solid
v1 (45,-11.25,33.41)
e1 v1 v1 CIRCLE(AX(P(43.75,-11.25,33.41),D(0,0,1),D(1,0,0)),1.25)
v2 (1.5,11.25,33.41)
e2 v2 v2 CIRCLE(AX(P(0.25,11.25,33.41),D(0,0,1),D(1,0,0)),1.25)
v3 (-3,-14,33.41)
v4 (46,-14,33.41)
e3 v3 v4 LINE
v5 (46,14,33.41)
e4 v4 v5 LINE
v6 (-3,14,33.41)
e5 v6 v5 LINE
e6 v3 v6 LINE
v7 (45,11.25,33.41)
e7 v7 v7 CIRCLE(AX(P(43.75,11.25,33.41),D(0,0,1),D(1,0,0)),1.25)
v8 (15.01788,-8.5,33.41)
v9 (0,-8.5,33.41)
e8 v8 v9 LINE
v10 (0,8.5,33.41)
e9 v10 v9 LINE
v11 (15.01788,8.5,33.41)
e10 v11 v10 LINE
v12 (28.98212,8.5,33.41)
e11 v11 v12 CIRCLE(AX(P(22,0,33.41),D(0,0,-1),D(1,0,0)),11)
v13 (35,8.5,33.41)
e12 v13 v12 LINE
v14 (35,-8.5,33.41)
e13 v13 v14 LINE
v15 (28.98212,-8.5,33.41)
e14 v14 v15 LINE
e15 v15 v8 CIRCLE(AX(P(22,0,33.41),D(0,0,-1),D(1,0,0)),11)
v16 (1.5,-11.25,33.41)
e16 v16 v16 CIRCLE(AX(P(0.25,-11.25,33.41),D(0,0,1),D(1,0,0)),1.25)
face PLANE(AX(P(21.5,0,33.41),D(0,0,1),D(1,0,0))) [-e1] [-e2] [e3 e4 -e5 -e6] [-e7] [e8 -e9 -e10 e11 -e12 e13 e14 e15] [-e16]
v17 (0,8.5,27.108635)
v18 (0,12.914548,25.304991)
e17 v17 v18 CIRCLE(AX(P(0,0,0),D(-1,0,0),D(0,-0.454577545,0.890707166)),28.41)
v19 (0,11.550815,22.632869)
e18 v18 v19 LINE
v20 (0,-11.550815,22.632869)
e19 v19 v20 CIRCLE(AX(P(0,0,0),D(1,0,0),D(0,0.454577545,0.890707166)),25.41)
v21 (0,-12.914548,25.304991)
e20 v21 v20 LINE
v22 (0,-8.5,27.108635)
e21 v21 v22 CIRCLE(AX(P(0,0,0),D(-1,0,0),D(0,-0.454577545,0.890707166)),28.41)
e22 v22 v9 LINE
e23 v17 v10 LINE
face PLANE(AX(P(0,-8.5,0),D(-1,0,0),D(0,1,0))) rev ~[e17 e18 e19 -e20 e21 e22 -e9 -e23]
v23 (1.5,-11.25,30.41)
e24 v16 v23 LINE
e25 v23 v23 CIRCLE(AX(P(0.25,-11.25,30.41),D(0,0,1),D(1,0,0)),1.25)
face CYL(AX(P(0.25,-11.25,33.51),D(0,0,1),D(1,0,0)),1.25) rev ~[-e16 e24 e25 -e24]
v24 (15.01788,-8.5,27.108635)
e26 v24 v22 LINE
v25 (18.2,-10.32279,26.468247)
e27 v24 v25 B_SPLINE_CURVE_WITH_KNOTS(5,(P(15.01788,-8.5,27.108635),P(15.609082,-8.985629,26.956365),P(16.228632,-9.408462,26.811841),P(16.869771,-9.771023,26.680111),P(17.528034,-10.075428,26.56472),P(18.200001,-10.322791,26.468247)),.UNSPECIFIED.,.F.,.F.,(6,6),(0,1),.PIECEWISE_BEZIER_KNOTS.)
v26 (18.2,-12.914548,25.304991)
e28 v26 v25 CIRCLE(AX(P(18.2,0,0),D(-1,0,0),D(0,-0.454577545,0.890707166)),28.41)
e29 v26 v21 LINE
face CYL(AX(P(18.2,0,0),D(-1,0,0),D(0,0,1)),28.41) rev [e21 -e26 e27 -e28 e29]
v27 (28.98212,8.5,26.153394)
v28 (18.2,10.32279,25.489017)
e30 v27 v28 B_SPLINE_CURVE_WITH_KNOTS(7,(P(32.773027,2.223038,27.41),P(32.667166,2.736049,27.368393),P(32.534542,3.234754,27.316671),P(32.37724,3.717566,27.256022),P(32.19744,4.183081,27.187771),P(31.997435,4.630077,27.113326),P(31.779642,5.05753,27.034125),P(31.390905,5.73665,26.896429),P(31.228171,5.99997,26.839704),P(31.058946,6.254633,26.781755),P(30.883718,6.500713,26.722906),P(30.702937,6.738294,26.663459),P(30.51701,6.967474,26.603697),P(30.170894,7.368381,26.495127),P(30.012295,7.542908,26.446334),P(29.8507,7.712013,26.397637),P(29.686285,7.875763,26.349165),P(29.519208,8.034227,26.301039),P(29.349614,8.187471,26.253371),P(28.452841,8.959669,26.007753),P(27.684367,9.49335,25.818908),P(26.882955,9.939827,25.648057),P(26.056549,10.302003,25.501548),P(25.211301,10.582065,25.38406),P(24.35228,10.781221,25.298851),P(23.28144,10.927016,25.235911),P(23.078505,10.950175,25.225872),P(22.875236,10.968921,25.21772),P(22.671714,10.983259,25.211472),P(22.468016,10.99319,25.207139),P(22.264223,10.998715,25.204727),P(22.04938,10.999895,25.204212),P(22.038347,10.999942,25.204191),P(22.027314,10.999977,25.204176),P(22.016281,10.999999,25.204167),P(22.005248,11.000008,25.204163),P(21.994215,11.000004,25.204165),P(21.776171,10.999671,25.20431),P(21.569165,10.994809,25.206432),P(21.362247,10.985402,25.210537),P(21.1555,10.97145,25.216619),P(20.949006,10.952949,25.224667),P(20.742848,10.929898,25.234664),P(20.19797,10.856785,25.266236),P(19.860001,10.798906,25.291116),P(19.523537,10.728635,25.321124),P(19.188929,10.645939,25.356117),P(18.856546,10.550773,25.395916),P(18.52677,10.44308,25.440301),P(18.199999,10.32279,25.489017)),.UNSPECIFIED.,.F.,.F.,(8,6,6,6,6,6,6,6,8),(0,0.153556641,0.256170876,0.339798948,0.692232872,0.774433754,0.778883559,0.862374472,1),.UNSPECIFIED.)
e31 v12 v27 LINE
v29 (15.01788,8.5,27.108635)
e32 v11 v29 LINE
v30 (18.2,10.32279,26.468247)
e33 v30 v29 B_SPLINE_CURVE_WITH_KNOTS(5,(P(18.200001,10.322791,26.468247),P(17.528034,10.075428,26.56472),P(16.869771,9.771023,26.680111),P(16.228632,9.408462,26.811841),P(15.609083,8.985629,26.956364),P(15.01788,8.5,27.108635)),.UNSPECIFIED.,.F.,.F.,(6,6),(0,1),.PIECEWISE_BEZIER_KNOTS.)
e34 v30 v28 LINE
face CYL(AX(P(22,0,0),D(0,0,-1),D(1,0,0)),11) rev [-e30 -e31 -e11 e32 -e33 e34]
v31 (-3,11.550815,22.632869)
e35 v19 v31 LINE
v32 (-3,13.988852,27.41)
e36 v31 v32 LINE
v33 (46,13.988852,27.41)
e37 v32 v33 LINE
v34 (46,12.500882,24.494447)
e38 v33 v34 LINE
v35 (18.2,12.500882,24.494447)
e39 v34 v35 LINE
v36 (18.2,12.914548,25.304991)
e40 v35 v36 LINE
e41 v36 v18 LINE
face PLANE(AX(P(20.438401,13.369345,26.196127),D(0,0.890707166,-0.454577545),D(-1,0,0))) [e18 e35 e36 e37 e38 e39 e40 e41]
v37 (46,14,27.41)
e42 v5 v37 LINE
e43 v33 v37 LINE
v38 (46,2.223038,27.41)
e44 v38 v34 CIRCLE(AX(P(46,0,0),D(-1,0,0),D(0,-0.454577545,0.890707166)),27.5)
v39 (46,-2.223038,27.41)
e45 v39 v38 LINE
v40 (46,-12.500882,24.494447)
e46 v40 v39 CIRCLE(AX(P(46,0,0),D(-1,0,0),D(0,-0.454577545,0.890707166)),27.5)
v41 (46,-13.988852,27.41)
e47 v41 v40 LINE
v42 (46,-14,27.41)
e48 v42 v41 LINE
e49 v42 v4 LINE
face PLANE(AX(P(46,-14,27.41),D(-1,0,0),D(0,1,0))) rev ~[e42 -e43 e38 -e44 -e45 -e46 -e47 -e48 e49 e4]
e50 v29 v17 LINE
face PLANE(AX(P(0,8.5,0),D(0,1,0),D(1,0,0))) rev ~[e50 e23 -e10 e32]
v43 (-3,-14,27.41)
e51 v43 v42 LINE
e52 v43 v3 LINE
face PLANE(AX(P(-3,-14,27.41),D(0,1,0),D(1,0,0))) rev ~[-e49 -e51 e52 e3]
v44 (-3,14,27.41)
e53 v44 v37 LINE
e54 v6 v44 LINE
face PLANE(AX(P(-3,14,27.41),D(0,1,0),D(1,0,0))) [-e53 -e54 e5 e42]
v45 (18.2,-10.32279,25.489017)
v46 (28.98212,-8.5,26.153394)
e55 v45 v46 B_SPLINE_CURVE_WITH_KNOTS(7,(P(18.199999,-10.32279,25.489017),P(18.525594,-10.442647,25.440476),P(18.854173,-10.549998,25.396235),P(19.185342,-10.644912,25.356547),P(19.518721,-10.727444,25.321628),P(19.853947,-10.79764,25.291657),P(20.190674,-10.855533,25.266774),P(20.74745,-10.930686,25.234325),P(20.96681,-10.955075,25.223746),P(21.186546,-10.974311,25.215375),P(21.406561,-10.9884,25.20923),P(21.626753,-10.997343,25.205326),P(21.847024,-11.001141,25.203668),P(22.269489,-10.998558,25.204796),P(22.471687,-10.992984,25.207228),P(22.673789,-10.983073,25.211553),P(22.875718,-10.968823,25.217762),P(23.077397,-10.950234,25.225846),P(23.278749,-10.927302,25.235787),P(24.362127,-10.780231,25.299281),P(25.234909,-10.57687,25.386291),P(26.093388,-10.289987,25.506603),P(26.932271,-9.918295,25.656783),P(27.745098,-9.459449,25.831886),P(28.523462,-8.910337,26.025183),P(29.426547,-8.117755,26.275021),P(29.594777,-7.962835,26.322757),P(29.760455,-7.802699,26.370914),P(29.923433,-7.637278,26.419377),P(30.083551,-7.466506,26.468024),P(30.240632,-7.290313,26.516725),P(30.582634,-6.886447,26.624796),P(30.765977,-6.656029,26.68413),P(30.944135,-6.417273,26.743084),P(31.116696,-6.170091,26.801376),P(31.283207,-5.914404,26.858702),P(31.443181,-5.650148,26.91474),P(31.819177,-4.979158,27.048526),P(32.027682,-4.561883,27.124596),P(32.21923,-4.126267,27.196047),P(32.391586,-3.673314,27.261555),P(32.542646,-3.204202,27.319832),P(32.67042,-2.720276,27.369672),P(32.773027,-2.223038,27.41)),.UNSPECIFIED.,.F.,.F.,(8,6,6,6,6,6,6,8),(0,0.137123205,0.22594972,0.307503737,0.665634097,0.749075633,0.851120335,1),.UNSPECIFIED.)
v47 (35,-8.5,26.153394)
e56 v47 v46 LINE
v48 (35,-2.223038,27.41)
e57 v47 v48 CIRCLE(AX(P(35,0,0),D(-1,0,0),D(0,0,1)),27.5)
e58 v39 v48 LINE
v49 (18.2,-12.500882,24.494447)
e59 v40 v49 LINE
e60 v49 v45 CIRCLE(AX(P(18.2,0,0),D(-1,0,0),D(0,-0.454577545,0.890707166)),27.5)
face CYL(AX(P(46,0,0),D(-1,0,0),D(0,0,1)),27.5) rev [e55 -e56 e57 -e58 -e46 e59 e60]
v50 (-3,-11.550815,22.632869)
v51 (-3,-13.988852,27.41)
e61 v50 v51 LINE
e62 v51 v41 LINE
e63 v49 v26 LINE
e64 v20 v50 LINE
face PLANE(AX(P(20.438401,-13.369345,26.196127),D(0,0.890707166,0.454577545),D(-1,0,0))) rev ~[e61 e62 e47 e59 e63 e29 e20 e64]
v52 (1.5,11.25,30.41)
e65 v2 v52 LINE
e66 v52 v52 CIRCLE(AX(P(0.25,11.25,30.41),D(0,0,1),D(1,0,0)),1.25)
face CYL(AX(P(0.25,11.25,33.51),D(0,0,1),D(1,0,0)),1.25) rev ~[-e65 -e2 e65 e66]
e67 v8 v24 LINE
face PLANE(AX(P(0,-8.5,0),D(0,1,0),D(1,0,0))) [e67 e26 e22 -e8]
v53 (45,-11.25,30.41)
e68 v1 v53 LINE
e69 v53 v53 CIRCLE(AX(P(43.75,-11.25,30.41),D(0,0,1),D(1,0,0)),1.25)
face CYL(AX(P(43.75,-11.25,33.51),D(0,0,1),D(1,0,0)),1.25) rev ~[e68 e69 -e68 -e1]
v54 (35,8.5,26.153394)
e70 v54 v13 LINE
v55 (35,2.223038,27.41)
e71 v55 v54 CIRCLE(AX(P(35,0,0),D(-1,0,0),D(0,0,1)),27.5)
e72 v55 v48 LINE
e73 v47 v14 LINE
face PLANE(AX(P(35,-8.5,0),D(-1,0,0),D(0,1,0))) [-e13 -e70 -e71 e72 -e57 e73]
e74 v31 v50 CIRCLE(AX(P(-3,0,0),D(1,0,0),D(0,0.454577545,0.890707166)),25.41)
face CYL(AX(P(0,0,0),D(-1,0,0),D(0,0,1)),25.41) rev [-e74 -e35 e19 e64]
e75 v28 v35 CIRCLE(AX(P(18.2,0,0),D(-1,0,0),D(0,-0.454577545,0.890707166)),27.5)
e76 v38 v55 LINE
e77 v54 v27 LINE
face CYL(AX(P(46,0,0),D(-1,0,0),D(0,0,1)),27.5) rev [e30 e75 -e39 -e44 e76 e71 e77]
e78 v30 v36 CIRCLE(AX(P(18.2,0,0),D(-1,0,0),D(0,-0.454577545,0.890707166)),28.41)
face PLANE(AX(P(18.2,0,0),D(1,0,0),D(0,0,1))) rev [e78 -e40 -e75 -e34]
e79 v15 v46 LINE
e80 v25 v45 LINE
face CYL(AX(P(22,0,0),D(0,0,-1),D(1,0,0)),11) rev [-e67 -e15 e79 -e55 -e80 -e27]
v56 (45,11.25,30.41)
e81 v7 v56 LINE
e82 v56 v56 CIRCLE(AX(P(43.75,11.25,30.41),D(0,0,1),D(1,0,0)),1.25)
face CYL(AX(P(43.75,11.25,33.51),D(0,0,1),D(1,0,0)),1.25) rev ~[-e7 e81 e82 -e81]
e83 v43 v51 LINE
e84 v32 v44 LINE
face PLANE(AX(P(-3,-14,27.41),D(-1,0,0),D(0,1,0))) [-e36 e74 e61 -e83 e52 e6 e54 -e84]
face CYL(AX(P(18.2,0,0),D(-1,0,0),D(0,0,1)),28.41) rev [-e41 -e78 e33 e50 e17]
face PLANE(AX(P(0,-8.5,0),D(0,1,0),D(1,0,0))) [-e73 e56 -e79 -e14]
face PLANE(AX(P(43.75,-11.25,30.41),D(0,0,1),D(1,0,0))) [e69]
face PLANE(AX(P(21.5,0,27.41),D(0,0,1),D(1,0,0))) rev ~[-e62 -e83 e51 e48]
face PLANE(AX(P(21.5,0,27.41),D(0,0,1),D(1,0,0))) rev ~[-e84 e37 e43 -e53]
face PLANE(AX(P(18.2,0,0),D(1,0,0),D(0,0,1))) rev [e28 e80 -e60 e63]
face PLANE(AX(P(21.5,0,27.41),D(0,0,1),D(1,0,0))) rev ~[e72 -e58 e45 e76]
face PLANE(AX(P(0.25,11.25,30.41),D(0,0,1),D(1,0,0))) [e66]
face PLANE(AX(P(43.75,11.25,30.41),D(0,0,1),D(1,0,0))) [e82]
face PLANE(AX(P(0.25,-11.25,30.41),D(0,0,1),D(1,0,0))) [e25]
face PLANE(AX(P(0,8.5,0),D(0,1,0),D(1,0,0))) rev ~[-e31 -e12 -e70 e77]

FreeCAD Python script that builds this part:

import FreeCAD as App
import Part
import Sketcher

V = App.Vector
Q = App.Units.Quantity


def add_polygon(sketch, points):
    """Adds a closed chain of lines whose ends are joined by coincident constraints."""
    first, n = sketch.GeometryCount, len(points)
    for a, b in zip(points, points[1:] + points[:1]):
        sketch.addGeometry(Part.LineSegment(App.Vector(*a, 0), App.Vector(*b, 0)), False)
    for i in range(n):
        sketch.addConstraint(Sketcher.Constraint("Coincident", first + i, 2, first + (i + 1) % n, 1))

doc = App.newDocument("Part")
body = doc.addObject("PartDesign::Body", "Body")

sketch1 = doc.addObject("Sketcher::SketchObject", "Sketch")
body.addObject(sketch1)
sketch1.AttachmentSupport = (doc.XZ_Plane, [""])
sketch1.MapMode = "FlatFace"
add_polygon(sketch1, [(46, 31.4), (-3, 31.4), (-3, 25.4), (0, 25.4), (0, 28.4), (18.2, 28.4), (18.2, 27.5), (46, 27.5)])
sketch1.addConstraint([
    Sketcher.Constraint("Horizontal", 0),
    Sketcher.Constraint("Vertical", 1),
    Sketcher.Constraint("Horizontal", 2),
    Sketcher.Constraint("Vertical", 3),
    Sketcher.Constraint("Horizontal", 4),
    Sketcher.Constraint("Vertical", 5),
    Sketcher.Constraint("Horizontal", 6),
    Sketcher.Constraint("Vertical", 7),
    Sketcher.Constraint("PointOnObject", 2, 2, -2),
    Sketcher.Constraint("Equal", 2, 3),
    Sketcher.Constraint("DistanceX", 0, 2, 0, 1, Q("49 mm")),
    Sketcher.Constraint("DistanceX", 2, 1, 2, 2, Q("3 mm")),
    Sketcher.Constraint("DistanceY", 1, 2, 1, 1, Q("6 mm")),
    Sketcher.Constraint("DistanceX", 4, 1, 4, 2, Q("18.2 mm")),
    Sketcher.Constraint("DistanceY", 5, 2, 5, 1, Q("0.91 mm")),
    Sketcher.Constraint("DistanceY", -1, 1, 5, 2, Q("27.5 mm")),
])
revolution = doc.addObject("PartDesign::Revolution", "Revolution")
body.addObject(revolution)
revolution.Profile = sketch1
revolution.ReferenceAxis = (sketch1, ["H_Axis"])
revolution.Angle = 27.037756
revolution.Reversed = True

sketch2 = doc.addObject("Sketcher::SketchObject", "Sketch001")
body.addObject(sketch2)
sketch2.AttachmentSupport = (doc.XZ_Plane, [""])
sketch2.MapMode = "FlatFace"
add_polygon(sketch2, [(46, 31.4), (-3, 31.4), (-3, 25.4), (0, 25.4), (0, 28.4), (18.2, 28.4), (18.2, 27.5), (46, 27.5)])
sketch2.addConstraint([
    Sketcher.Constraint("Horizontal", 0),
    Sketcher.Constraint("Vertical", 1),
    Sketcher.Constraint("Horizontal", 2),
    Sketcher.Constraint("Vertical", 3),
    Sketcher.Constraint("Horizontal", 4),
    Sketcher.Constraint("Vertical", 5),
    Sketcher.Constraint("Horizontal", 6),
    Sketcher.Constraint("Vertical", 7),
    Sketcher.Constraint("PointOnObject", 2, 2, -2),
    Sketcher.Constraint("Equal", 2, 3),
    Sketcher.Constraint("DistanceX", 0, 2, 0, 1, Q("49 mm")),
    Sketcher.Constraint("DistanceX", 2, 1, 2, 2, Q("3 mm")),
    Sketcher.Constraint("DistanceY", 1, 2, 1, 1, Q("6 mm")),
    Sketcher.Constraint("DistanceX", 4, 1, 4, 2, Q("18.2 mm")),
    Sketcher.Constraint("DistanceY", 5, 2, 5, 1, Q("0.91 mm")),
    Sketcher.Constraint("DistanceY", -1, 1, 5, 2, Q("27.5 mm")),
])
revolution2 = doc.addObject("PartDesign::Revolution", "Revolution001")
body.addObject(revolution2)
revolution2.Profile = sketch2
revolution2.ReferenceAxis = (sketch2, ["H_Axis"])
revolution2.Angle = 27.037756

sketch3 = doc.addObject("Sketcher::SketchObject", "Sketch002")
body.addObject(sketch3)
sketch3.AttachmentSupport = (doc.XY_Plane, [""])
sketch3.MapMode = "FlatFace"
sketch3.AttachmentOffset = App.Placement(V(0, 0, 27.41), App.Rotation())
add_polygon(sketch3, [(-3, 14), (-3, -14), (46, -14), (46, 14)])
sketch3.addConstraint([
    Sketcher.Constraint("Vertical", 0),
    Sketcher.Constraint("Horizontal", 1),
    Sketcher.Constraint("Vertical", 2),
    Sketcher.Constraint("Horizontal", 3),
    Sketcher.Constraint("DistanceX", 1, 1, 1, 2, Q("49 mm")),
    Sketcher.Constraint("DistanceY", 0, 2, 0, 1, Q("28 mm")),
    Sketcher.Constraint("DistanceX", 0, 2, -1, 1, Q("3 mm")),
    Sketcher.Constraint("DistanceY", 0, 2, -1, 1, Q("14 mm")),
])
pad1 = doc.addObject("PartDesign::Pad", "Pad")
body.addObject(pad1)
pad1.Profile = sketch3
pad1.Length = 6

sketch4 = doc.addObject("Sketcher::SketchObject", "Sketch003")
body.addObject(sketch4)
sketch4.AttachmentSupport = (doc.XY_Plane, [""])
sketch4.MapMode = "FlatFace"
add_polygon(sketch4, [(0, 8), (0, -8), (35, -8), (35, 8)])
sketch4.addConstraint([
    Sketcher.Constraint("Vertical", 0),
    Sketcher.Constraint("Horizontal", 1),
    Sketcher.Constraint("Vertical", 2),
    Sketcher.Constraint("Horizontal", 3),
    Sketcher.Constraint("Symmetric", 0, 2, 3, 2, -1, 1),
    Sketcher.Constraint("DistanceX", 1, 1, 1, 2, Q("35 mm")),
    Sketcher.Constraint("DistanceY", 0, 2, 0, 1, Q("17 mm")),
])
pocket1 = doc.addObject("PartDesign::Pocket", "Pocket")
body.addObject(pocket1)
pocket1.Profile = sketch4
pocket1.Type = "ThroughAll"
pocket1.Midplane = True

sketch5 = doc.addObject("Sketcher::SketchObject", "Sketch004")
body.addObject(sketch5)
sketch5.AttachmentSupport = (doc.XY_Plane, [""])
sketch5.MapMode = "FlatFace"
sketch5.AttachmentOffset = App.Placement(V(0, 0, 33.51), App.Rotation())
sketch5.addGeometry([
    Part.Circle(V(43.8, 11.2, 0), V(0, 0, 1), 1.2),
    Part.Circle(V(0.2, 11.2, 0), V(0, 0, 1), 1.2),
    Part.Circle(V(0.2, -11.2, 0), V(0, 0, 1), 1.2),
    Part.Circle(V(43.8, -11.2, 0), V(0, 0, 1), 1.2),
], False)
sketch5.addConstraint([
    Sketcher.Constraint("Equal", 0, 1),
    Sketcher.Constraint("Equal", 1, 2),
    Sketcher.Constraint("Equal", 2, 3),
    Sketcher.Constraint("Symmetric", 1, 3, 2, 3, -1),
    Sketcher.Constraint("Symmetric", 0, 3, 3, 3, -1),
    Sketcher.Constraint("Horizontal", 0, 3, 1, 3),
    Sketcher.Constraint("Diameter", 0, Q("2.5 mm")),
    Sketcher.Constraint("DistanceX", 1, 3, 0, 3, Q("43.5 mm")),
    Sketcher.Constraint("DistanceY", 2, 3, 1, 3, Q("22.5 mm")),
    Sketcher.Constraint("DistanceX", -1, 1, 0, 3, Q("43.75 mm")),
])
pocket2 = doc.addObject("PartDesign::Pocket", "Pocket001")
body.addObject(pocket2)
pocket2.Profile = sketch5
pocket2.Length = 3.1

sketch6 = doc.addObject("Sketcher::SketchObject", "Sketch005")
body.addObject(sketch6)
sketch6.AttachmentSupport = (doc.XY_Plane, [""])
sketch6.MapMode = "FlatFace"
sketch6.AttachmentOffset = App.Placement(V(0, 0, 28.41), App.Rotation())
add_polygon(sketch6, [(-8, 19), (-8, -19), (51, -19), (51, 19)])
add_polygon(sketch6, [(46, -14), (-3, -14), (-3, 14), (46, 14)])
sketch6.addConstraint([
    Sketcher.Constraint("Vertical", 0),
    Sketcher.Constraint("Horizontal", 1),
    Sketcher.Constraint("Vertical", 2),
    Sketcher.Constraint("Horizontal", 3),
    Sketcher.Constraint("Horizontal", 4),
    Sketcher.Constraint("Vertical", 5),
    Sketcher.Constraint("Horizontal", 6),
    Sketcher.Constraint("Vertical", 7),
    Sketcher.Constraint("DistanceX", 1, 1, 1, 2, Q("59 mm")),
    Sketcher.Constraint("DistanceX", 4, 2, 4, 1, Q("49 mm")),
    Sketcher.Constraint("DistanceY", 0, 2, 0, 1, Q("38 mm")),
    Sketcher.Constraint("DistanceY", 5, 1, 5, 2, Q("28 mm")),
    Sketcher.Constraint("DistanceX", 0, 2, -1, 1, Q("8 mm")),
    Sketcher.Constraint("DistanceY", 0, 2, -1, 1, Q("19 mm")),
    Sketcher.Constraint("DistanceX", 4, 2, -1, 1, Q("3 mm")),
    Sketcher.Constraint("DistanceY", 4, 2, -1, 1, Q("14 mm")),
])
pocket3 = doc.addObject("PartDesign::Pocket", "Pocket002")
body.addObject(pocket3)
pocket3.Profile = sketch6
pocket3.Type = "ThroughAll"

sketch7 = doc.addObject("Sketcher::SketchObject", "Sketch006")
body.addObject(sketch7)
sketch7.AttachmentSupport = (doc.XY_Plane, [""])
sketch7.MapMode = "FlatFace"
sketch7.addGeometry(Part.Circle(V(22, 0, 0), V(0, 0, 1), 11), False)
sketch7.addConstraint([
    Sketcher.Constraint("PointOnObject", 0, 3, -1),
    Sketcher.Constraint("Diameter", 0, Q("22 mm")),
    Sketcher.Constraint("DistanceX", -1, 1, 0, 3, Q("22 mm")),
])
pocket4 = doc.addObject("PartDesign::Pocket", "Pocket003")
body.addObject(pocket4)
pocket4.Profile = sketch7
pocket4.Type = "ThroughAll"
pocket4.Reversed = True

doc.recompute()
